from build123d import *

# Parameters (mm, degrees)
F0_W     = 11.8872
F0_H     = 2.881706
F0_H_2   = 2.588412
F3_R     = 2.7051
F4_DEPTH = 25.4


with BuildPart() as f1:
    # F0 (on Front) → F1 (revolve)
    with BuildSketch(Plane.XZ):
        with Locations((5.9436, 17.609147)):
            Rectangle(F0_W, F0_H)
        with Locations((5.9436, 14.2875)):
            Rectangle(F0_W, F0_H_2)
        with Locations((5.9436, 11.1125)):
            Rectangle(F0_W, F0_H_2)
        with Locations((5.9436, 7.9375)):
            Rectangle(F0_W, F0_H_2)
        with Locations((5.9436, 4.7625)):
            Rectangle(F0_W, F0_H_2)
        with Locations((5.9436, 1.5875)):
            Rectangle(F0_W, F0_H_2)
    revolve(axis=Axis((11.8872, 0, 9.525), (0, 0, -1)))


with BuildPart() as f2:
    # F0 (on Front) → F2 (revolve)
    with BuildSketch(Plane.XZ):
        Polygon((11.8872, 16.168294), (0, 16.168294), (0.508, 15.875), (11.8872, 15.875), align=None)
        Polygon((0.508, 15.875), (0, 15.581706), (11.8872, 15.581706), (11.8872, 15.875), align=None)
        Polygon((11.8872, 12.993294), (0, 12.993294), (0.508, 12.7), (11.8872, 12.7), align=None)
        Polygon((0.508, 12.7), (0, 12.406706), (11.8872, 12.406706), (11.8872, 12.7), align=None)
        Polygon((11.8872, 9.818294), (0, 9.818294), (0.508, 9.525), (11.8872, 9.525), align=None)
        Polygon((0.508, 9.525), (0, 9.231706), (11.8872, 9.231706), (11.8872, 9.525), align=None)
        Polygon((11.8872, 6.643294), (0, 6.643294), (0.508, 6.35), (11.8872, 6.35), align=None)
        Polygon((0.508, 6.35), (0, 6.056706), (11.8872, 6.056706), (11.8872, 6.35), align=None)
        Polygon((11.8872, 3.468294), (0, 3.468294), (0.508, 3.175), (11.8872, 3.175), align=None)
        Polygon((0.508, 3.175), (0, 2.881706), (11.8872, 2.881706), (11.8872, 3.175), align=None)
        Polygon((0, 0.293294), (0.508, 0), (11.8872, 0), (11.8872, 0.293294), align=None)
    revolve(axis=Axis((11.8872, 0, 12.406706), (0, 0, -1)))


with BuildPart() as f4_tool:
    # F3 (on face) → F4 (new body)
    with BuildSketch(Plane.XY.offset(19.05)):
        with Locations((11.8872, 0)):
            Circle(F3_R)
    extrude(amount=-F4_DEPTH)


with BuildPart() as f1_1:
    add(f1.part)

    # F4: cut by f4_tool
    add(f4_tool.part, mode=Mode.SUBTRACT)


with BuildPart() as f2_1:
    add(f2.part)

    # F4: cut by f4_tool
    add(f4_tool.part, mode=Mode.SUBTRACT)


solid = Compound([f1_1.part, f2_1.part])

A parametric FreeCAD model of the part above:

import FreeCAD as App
import Part
import Sketcher

V = App.Vector
Q = App.Units.Quantity


def add_polygon(sketch, points):
    """Adds a closed chain of lines whose ends are joined by coincident constraints."""
    first, n = sketch.GeometryCount, len(points)
    for a, b in zip(points, points[1:] + points[:1]):
        sketch.addGeometry(Part.LineSegment(App.Vector(*a, 0), App.Vector(*b, 0)), False)
    for i in range(n):
        sketch.addConstraint(Sketcher.Constraint("Coincident", first + i, 2, first + (i + 1) % n, 1))

doc = App.newDocument("Part")
body = doc.addObject("PartDesign::Body", "Body")
body.AllowCompound = True

sketch1 = body.newObject("Sketcher::SketchObject", "Sketch")
sketch1.AttachmentSupport = (doc.getObject("XZ_Plane"), [""])
sketch1.MapMode = "FlatFace"
add_polygon(sketch1, [(0, 19.05), (0, 16.168294), (11.8872, 16.168294), (11.8872, 19.05)])
add_polygon(sketch1, [(0, 15.581706), (0, 12.993294), (11.8872, 12.993294), (11.8872, 15.581706)])
add_polygon(sketch1, [(0, 12.406706), (0, 9.818294), (11.8872, 9.818294), (11.8872, 12.406706)])
add_polygon(sketch1, [(0, 9.231706), (0, 6.643294), (11.8872, 6.643294), (11.8872, 9.231706)])
add_polygon(sketch1, [(0, 6.056706), (0, 3.468294), (11.8872, 3.468294), (11.8872, 6.056706)])
add_polygon(sketch1, [(0, 2.881706), (0, 0.293294), (11.8872, 0.293294), (11.8872, 2.881706)])
sketch1.addGeometry(Part.LineSegment(V(11.8872, 19.05, 0), V(11.8872, 0.293294, 0)), True)
sketch1.addConstraint([
    Sketcher.Constraint("Vertical", 0),
    Sketcher.Constraint("Horizontal", 1),
    Sketcher.Constraint("Vertical", 2),
    Sketcher.Constraint("Horizontal", 3),
    Sketcher.Constraint("Vertical", 4),
    Sketcher.Constraint("Horizontal", 5),
    Sketcher.Constraint("Vertical", 6),
    Sketcher.Constraint("Horizontal", 7),
    Sketcher.Constraint("Vertical", 8),
    Sketcher.Constraint("Horizontal", 9),
    Sketcher.Constraint("Vertical", 10),
    Sketcher.Constraint("Horizontal", 11),
    Sketcher.Constraint("Vertical", 12),
    Sketcher.Constraint("Horizontal", 13),
    Sketcher.Constraint("Vertical", 14),
    Sketcher.Constraint("Horizontal", 15),
    Sketcher.Constraint("Vertical", 16),
    Sketcher.Constraint("Horizontal", 17),
    Sketcher.Constraint("Vertical", 18),
    Sketcher.Constraint("Horizontal", 19),
    Sketcher.Constraint("Vertical", 20),
    Sketcher.Constraint("Horizontal", 21),
    Sketcher.Constraint("Vertical", 22),
    Sketcher.Constraint("Horizontal", 23),
    Sketcher.Constraint("Vertical", 24),
    Sketcher.Constraint("Coincident", 24, 1, 2, 2),
    Sketcher.Constraint("Coincident", 24, 2, 21, 2),
    Sketcher.Constraint("PointOnObject", 0, 2, -2),
    Sketcher.Constraint("PointOnObject", 4, 2, -2),
    Sketcher.Constraint("PointOnObject", 8, 2, -2),
    Sketcher.Constraint("PointOnObject", 12, 2, -2),
    Sketcher.Constraint("PointOnObject", 16, 2, -2),
    Sketcher.Constraint("PointOnObject", 20, 2, -2),
    Sketcher.Constraint("Vertical", 2, 2, 5, 2),
    Sketcher.Constraint("Vertical", 6, 2, 9, 2),
    Sketcher.Constraint("Vertical", 10, 2, 13, 2),
    Sketcher.Constraint("Vertical", 14, 2, 17, 2),
    Sketcher.Constraint("Equal", 6, 8),
    Sketcher.Constraint("Equal", 10, 12),
    Sketcher.Constraint("Equal", 14, 16),
    Sketcher.Constraint("Equal", 18, 20),
    Sketcher.Constraint("DistanceX", 1, 1, 1, 2, Q("0.468 in")),
    Sketcher.Constraint("DistanceY", -1, 1, 2, 2, Q("0.75 in")),
    Sketcher.Constraint("DistanceY", 8, 2, 0, 2, Q("0.25 in")),
    Sketcher.Constraint("DistanceY", 12, 2, 4, 2, Q("0.25 in")),
    Sketcher.Constraint("DistanceY", 16, 2, 8, 2, Q("0.25 in")),
    Sketcher.Constraint("DistanceY", 20, 2, 12, 2, Q("0.25 in")),
    Sketcher.Constraint("DistanceY", 4, 2, 0, 2, Q("0.125 in")),
    Sketcher.Constraint("DistanceY", 4, 2, 4, 1, Q("2.588412 mm")),
    Sketcher.Constraint("DistanceY", 0, 2, 0, 1, Q("2.881706 mm")),
])
revolution = body.newObject("PartDesign::Revolution", "Revolution")
revolution.Profile = sketch1
revolution.ReferenceAxis = (sketch1, ["Axis0"])
revolution.Angle = 360
body2 = doc.addObject("PartDesign::Body", "Body001")
body2.AllowCompound = True

sketch2 = body2.newObject("Sketcher::SketchObject", "Sketch001")
sketch2.AttachmentSupport = (doc.getObject("XZ_Plane001"), [""])
sketch2.MapMode = "FlatFace"
add_polygon(sketch2, [(11.8872, 16.168294), (0, 16.168294), (0.508, 15.875), (0, 15.581706), (11.8872, 15.581706)])
add_polygon(sketch2, [(11.8872, 12.993294), (0, 12.993294), (0.508, 12.7), (0, 12.406706), (11.8872, 12.406706)])
add_polygon(sketch2, [(11.8872, 9.818294), (0, 9.818294), (0.508, 9.525), (0, 9.231706), (11.8872, 9.231706)])
add_polygon(sketch2, [(11.8872, 6.643294), (0, 6.643294), (0.508, 6.35), (0, 6.056706), (11.8872, 6.056706)])
add_polygon(sketch2, [(11.8872, 3.468294), (0, 3.468294), (0.508, 3.175), (0, 2.881706), (11.8872, 2.881706)])
add_polygon(sketch2, [(0, 0.293294), (0.508, 0), (11.8872, 0), (11.8872, 0.293294)])
sketch2.addGeometry(Part.LineSegment(V(11.8872, 16.168294, 0), V(11.8872, 0, 0)), True)
sketch2.addConstraint([
    Sketcher.Constraint("Horizontal", 0),
    Sketcher.Constraint("Horizontal", 3),
    Sketcher.Constraint("Vertical", 4),
    Sketcher.Constraint("Horizontal", 5),
    Sketcher.Constraint("Horizontal", 8),
    Sketcher.Constraint("Vertical", 9),
    Sketcher.Constraint("Horizontal", 10),
    Sketcher.Constraint("Horizontal", 13),
    Sketcher.Constraint("Vertical", 14),
    Sketcher.Constraint("Horizontal", 15),
    Sketcher.Constraint("Horizontal", 18),
    Sketcher.Constraint("Vertical", 19),
    Sketcher.Constraint("Horizontal", 20),
    Sketcher.Constraint("Horizontal", 23),
    Sketcher.Constraint("Vertical", 24),
    Sketcher.Constraint("Horizontal", 26),
    Sketcher.Constraint("Vertical", 27),
    Sketcher.Constraint("Horizontal", 28),
    Sketcher.Constraint("Vertical", 29),
    Sketcher.Constraint("Coincident", 29, 1, 4, 2),
    Sketcher.Constraint("Coincident", 29, 2, 26, 2),
    Sketcher.Constraint("PointOnObject", 0, 2, -2),
    Sketcher.Constraint("PointOnObject", 2, 2, -2),
    Sketcher.Constraint("PointOnObject", 5, 2, -2),
    Sketcher.Constraint("PointOnObject", 7, 2, -2),
    Sketcher.Constraint("PointOnObject", 10, 2, -2),
    Sketcher.Constraint("PointOnObject", 12, 2, -2),
    Sketcher.Constraint("PointOnObject", 15, 2, -2),
    Sketcher.Constraint("PointOnObject", 17, 2, -2),
    Sketcher.Constraint("PointOnObject", 20, 2, -2),
    Sketcher.Constraint("PointOnObject", 22, 2, -2),
    Sketcher.Constraint("PointOnObject", 25, 2, -1),
    Sketcher.Constraint("PointOnObject", 28, 2, -2),
    Sketcher.Constraint("Parallel", 1, 6),
    Sketcher.Constraint("Parallel", 2, 7),
    Sketcher.Constraint("Parallel", 6, 11),
    Sketcher.Constraint("Parallel", 7, 12),
    Sketcher.Constraint("Parallel", 11, 16),
    Sketcher.Constraint("Parallel", 12, 17),
    Sketcher.Constraint("Parallel", 16, 21),
    Sketcher.Constraint("Parallel", 17, 22),
    Sketcher.Constraint("Parallel", 21, 25),
    Sketcher.Constraint("Vertical", 1, 2, 6, 2),
    Sketcher.Constraint("Vertical", 4, 2, 8, 2),
    Sketcher.Constraint("Vertical", 6, 2, 11, 2),
    Sketcher.Constraint("Vertical", 9, 2, 13, 2),
    Sketcher.Constraint("Vertical", 11, 2, 16, 2),
    Sketcher.Constraint("Vertical", 14, 2, 18, 2),
    Sketcher.Constraint("Vertical", 16, 2, 21, 2),
    Sketcher.Constraint("Vertical", 19, 2, 23, 2),
    Sketcher.Constraint("Vertical", 21, 2, 25, 2),
    Sketcher.Constraint("Equal", 1, 2),
    Sketcher.Constraint("Angle", 1, Q("-30.000005 deg")),
    Sketcher.Constraint("DistanceY", -1, 1, 6, 2, Q("0.5 in")),
    Sketcher.Constraint("DistanceX", 0, 2, 0, 1, Q("0.468 in")),
    Sketcher.Constraint("DistanceX", 26, 1, 26, 2, Q("0.448 in")),
    Sketcher.Constraint("DistanceY", -1, 1, 16, 2, Q("0.25 in")),
    Sketcher.Constraint("DistanceY", 13, 2, 3, 2, Q("0.25 in")),
    Sketcher.Constraint("DistanceY", 23, 2, 13, 2, Q("0.25 in")),
    Sketcher.Constraint("DistanceY", -1, 1, 1, 2, Q("0.625 in")),
])
revolution2 = body2.newObject("PartDesign::Revolution", "Revolution001")
revolution2.Profile = sketch2
revolution2.ReferenceAxis = (sketch2, ["Axis0"])
revolution2.Angle = 360
body3 = doc.addObject("PartDesign::Body", "Body002")

sketch3 = body3.newObject("Sketcher::SketchObject", "Sketch002")
sketch3.AttachmentSupport = (doc.getObject("XY_Plane002"), [""])
sketch3.MapMode = "FlatFace"
sketch3.AttachmentOffset = App.Placement(V(0, 0, 0.75 * 25.4), App.Rotation())
sketch3.addGeometry(Part.Circle(V(11.8872, 0, 0), V(0, 0, 1), 2.7051), False)
sketch3.addConstraint([
    Sketcher.Constraint("PointOnObject", 0, 3, -1),
    Sketcher.Constraint("Diameter", 0, Q("0.213 in")),
    Sketcher.Constraint("DistanceX", -1, 1, 0, 3, Q("0.468 in")),
])
pad1 = body3.newObject("PartDesign::Pad", "Pad")
pad1.Profile = sketch3
pad1.Length = Q("1 in")
pad1.Reversed = True
body.AllowCompound = True
doc.recompute()

body4 = doc.addObject("PartDesign::Body", "Body003")
body4.BaseFeature = body3
boolean = body.newObject("PartDesign::Boolean", "Boolean")
boolean.Type = "Cut"
boolean.addObjects([body4])
doc.recompute()
body2.AllowCompound = True
doc.recompute()

boolean2 = body2.newObject("PartDesign::Boolean", "Boolean001")
boolean2.Type = "Cut"
boolean2.addObjects([body3])

doc.recompute()
